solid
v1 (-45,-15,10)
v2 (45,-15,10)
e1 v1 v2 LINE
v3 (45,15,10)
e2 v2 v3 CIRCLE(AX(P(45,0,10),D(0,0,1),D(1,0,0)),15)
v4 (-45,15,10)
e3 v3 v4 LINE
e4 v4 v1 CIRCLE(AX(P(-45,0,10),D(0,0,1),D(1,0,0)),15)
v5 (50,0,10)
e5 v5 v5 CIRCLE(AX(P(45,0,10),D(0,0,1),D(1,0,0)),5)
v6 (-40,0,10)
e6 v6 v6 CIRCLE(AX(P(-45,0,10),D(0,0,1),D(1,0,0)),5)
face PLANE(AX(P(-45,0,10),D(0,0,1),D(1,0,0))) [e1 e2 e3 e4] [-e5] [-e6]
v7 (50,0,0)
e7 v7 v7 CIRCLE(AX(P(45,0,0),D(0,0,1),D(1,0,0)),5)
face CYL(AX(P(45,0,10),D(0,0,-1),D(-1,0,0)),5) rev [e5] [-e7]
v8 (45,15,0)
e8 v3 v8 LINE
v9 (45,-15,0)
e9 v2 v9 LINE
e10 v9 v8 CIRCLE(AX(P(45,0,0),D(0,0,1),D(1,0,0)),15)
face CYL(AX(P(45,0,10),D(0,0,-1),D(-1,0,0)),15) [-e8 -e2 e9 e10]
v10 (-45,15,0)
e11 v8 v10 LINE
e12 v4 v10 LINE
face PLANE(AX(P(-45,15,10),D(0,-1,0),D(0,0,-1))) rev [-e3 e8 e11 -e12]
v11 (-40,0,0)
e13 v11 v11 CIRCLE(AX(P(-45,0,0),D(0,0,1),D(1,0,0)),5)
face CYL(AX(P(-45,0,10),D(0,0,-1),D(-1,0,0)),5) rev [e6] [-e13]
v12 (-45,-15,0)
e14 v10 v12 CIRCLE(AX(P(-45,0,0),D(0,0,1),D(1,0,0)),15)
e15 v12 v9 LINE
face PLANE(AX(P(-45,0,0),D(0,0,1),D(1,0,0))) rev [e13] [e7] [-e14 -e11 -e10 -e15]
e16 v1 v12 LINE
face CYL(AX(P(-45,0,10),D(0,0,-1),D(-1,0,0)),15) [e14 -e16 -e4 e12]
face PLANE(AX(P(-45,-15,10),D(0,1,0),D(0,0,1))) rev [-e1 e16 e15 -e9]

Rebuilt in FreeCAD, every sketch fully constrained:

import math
import FreeCAD as App
import Part
import Sketcher
from FreeCAD import Vector

doc = App.newDocument("Part")
body = doc.addObject("PartDesign::Body", "Body")

sketch1 = body.newObject("Sketcher::SketchObject", "Sketch")
sketch1.AttachmentSupport = (doc.getObject("XY_Plane"), [""])
sketch1.MapMode = "FlatFace"
sketch1.addGeometry(Part.LineSegment(Vector(45, 15, 0), Vector(-45, 15, 0)), False)
sketch1.addGeometry(Part.ArcOfCircle(Part.Circle(Vector(-45, 0, 0), Vector(0, 0, 1), 15), math.radians(90), math.radians(270)), False)
sketch1.addGeometry(Part.LineSegment(Vector(-45, -15, 0), Vector(45, -15, 0)), False)
sketch1.addGeometry(Part.ArcOfCircle(Part.Circle(Vector(45, 0, 0), Vector(0, 0, 1), 15), math.radians(-90), math.radians(90)), False)
sketch1.addGeometry(Part.Circle(Vector(45, 0, 0), Vector(0, 0, 1), 5), False)
sketch1.addGeometry(Part.Circle(Vector(-45, 0, 0), Vector(0, 0, 1), 5), False)
sketch1.addConstraint(Sketcher.Constraint("Tangent", 0, 2, 1, 1))
sketch1.addConstraint(Sketcher.Constraint("Tangent", 1, 2, 2, 1))
sketch1.addConstraint(Sketcher.Constraint("Tangent", 2, 2, 3, 1))
sketch1.addConstraint(Sketcher.Constraint("Tangent", 3, 2, 0, 1))
sketch1.addConstraint(Sketcher.Constraint("Horizontal", 0))
sketch1.addConstraint(Sketcher.Constraint("Horizontal", 2))
sketch1.addConstraint(Sketcher.Constraint("Coincident", 4, 3, 3, 3))
sketch1.addConstraint(Sketcher.Constraint("Coincident", 5, 3, 1, 3))
sketch1.addConstraint(Sketcher.Constraint("Equal", 4, 5))
sketch1.addConstraint(Sketcher.Constraint("Symmetric", 1, 3, 3, 3, -1, 1))
sketch1.addConstraint(Sketcher.Constraint("Diameter", 4, 10.0))
sketch1.addConstraint(Sketcher.Constraint("Radius", 1, 15.0))
sketch1.addConstraint(Sketcher.Constraint("DistanceX", 0, 2, 0, 1, 90.0))
pad1 = body.newObject("PartDesign::Pad", "Pad")
pad1.Profile = sketch1
pad1.Length = 10

doc.recompute()
